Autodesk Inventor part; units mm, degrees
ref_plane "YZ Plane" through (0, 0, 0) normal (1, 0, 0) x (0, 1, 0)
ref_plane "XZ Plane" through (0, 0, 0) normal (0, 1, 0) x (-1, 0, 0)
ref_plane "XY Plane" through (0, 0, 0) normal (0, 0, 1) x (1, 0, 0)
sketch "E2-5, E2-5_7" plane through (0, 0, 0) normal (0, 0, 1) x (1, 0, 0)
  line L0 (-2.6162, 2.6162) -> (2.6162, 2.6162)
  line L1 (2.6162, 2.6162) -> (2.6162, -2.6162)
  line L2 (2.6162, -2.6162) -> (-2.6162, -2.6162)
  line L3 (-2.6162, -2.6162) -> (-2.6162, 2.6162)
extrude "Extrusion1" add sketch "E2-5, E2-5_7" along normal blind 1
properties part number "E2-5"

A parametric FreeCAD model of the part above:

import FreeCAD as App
import Part
import Sketcher
from FreeCAD import Vector

doc = App.newDocument("Part")
body = doc.addObject("PartDesign::Body", "Body")

# Sketch on XY plane
sketch1 = body.newObject("Sketcher::SketchObject", "Sketch")
sketch1.AttachmentSupport = (doc.getObject("XY_Plane"), [""])
sketch1.MapMode = "FlatFace"
sketch1.addGeometry(Part.LineSegment(Vector(3, 3, 0), Vector(-3, 3, 0)), False)
sketch1.addGeometry(Part.LineSegment(Vector(-3, 3, 0), Vector(-3, -3, 0)), False)
sketch1.addGeometry(Part.LineSegment(Vector(-3, -3, 0), Vector(3, -3, 0)), False)
sketch1.addGeometry(Part.LineSegment(Vector(3, -3, 0), Vector(3, 3, 0)), False)
sketch1.addConstraint(Sketcher.Constraint("Coincident", 0, 2, 1, 1))
sketch1.addConstraint(Sketcher.Constraint("Coincident", 1, 2, 2, 1))
sketch1.addConstraint(Sketcher.Constraint("Coincident", 2, 2, 3, 1))
sketch1.addConstraint(Sketcher.Constraint("Coincident", 3, 2, 0, 1))
sketch1.addConstraint(Sketcher.Constraint("Horizontal", 0))
sketch1.addConstraint(Sketcher.Constraint("Vertical", 1))
sketch1.addConstraint(Sketcher.Constraint("Horizontal", 2))
sketch1.addConstraint(Sketcher.Constraint("Vertical", 3))
sketch1.addConstraint(Sketcher.Constraint("Symmetric", 0, 2, 2, 2, -1, 1))
sketch1.addConstraint(Sketcher.Constraint("Equal", 2, 1))
sketch1.addConstraint(Sketcher.Constraint("DistanceX", 0, 2, 0, 1, 5.2324))
pad1 = body.newObject("PartDesign::Pad", "Pad")
pad1.Profile = sketch1
pad1.Length = 1

doc.recompute()
